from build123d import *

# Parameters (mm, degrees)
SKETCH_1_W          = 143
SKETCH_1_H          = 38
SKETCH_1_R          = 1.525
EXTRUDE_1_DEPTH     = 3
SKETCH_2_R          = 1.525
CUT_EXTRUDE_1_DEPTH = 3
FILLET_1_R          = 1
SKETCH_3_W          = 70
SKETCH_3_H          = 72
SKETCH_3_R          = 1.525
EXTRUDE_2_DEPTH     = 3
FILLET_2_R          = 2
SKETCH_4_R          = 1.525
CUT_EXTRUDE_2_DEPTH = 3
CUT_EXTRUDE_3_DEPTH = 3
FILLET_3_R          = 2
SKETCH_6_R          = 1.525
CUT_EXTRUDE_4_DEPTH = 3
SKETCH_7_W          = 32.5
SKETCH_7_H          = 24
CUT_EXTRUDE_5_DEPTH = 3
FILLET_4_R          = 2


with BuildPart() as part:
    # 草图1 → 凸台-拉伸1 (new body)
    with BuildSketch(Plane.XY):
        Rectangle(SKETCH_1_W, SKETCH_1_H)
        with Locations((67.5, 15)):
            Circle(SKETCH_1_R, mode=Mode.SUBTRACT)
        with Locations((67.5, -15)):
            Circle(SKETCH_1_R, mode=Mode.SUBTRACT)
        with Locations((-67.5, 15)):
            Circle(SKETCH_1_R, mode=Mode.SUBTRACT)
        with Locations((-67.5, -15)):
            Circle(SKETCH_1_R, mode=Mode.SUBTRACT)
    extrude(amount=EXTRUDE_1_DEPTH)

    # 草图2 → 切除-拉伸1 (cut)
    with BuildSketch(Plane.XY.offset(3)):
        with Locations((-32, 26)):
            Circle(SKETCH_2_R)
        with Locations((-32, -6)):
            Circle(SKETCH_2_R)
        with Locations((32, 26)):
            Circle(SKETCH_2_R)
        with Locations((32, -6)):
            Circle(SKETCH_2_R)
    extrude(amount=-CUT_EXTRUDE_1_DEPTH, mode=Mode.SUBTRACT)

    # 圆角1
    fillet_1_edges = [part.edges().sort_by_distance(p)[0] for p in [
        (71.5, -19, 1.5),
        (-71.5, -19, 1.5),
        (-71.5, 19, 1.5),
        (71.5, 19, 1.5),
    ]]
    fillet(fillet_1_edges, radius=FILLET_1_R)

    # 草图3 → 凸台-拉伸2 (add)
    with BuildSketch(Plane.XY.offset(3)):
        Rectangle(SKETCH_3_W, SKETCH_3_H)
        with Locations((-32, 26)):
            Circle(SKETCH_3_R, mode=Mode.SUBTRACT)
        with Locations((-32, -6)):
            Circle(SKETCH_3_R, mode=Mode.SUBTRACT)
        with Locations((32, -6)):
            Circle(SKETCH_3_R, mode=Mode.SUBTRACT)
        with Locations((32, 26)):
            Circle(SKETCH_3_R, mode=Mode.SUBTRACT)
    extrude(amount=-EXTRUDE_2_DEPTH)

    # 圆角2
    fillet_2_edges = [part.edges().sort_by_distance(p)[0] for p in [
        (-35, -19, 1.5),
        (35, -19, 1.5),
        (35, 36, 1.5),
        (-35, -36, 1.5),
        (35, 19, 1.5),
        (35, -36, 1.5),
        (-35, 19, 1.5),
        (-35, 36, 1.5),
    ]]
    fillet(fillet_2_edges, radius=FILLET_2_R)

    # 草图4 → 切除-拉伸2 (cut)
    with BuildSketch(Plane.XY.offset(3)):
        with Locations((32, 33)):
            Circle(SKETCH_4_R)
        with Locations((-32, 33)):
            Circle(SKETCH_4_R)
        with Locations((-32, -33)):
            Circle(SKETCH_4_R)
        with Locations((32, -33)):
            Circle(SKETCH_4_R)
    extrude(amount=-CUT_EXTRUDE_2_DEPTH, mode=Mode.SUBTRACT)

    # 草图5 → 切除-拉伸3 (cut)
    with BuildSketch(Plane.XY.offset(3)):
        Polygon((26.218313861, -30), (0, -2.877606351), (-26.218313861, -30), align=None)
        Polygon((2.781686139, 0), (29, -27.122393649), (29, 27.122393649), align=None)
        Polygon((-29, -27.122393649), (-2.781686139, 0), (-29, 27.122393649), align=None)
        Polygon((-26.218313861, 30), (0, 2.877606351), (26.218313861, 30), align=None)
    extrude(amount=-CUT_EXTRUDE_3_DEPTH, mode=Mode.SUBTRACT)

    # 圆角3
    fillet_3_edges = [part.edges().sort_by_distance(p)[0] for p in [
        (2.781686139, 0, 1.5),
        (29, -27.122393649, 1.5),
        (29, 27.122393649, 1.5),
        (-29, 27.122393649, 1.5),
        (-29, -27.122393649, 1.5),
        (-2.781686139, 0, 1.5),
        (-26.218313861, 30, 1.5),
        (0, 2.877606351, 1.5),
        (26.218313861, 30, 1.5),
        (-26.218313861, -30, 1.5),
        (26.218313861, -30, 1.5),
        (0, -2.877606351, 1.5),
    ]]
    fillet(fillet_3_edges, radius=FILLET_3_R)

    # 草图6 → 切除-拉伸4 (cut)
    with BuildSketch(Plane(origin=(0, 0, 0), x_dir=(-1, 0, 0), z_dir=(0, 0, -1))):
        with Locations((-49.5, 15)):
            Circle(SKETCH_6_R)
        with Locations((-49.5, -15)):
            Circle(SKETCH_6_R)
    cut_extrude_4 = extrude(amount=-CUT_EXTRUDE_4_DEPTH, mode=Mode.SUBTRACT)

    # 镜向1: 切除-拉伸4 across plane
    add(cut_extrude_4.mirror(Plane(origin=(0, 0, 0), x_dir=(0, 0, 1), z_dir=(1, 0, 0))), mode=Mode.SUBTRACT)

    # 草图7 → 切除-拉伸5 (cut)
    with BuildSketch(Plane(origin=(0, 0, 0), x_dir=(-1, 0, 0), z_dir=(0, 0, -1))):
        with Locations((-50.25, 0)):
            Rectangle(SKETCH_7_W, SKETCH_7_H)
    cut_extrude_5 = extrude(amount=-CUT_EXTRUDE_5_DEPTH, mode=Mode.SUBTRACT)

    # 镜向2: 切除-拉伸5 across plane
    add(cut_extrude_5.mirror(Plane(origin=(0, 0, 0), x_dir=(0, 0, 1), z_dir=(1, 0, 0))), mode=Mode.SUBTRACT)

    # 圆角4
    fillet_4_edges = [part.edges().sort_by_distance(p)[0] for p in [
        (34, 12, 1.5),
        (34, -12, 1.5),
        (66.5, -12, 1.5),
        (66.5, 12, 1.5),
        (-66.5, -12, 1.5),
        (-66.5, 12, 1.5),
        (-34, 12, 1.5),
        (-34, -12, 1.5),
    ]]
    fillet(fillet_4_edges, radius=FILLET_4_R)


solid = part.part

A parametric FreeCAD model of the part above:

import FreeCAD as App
import Part
import Sketcher


def edges_at(feature, points):
    """Names of the edges that pass closest to the given points."""
    edges = feature.Shape.Edges
    near = lambda p: min(range(len(edges)), key=lambda i: edges[i].distToShape(Part.Vertex(*p))[0])
    return sorted({f"Edge{near(p) + 1}" for p in points})

doc = App.newDocument("Part")
params = doc.addObject("Spreadsheet::Sheet", "Params")
for row, (alias, value) in enumerate([
    ("sketch1_diameter", "3.05 mm"),
    ("sketch1_width", "143 mm"),
    ("sketch1_height", "38 mm"),
    ("pad1_length", "3 mm"),
    ("sketch2_diameter", "3.05 mm"),
    ("pocket1_length", "3 mm"),
    ("fillet_radius", "1 mm"),
    ("sketch3_diameter", "3.05 mm"),
    ("sketch3_width", "70 mm"),
    ("sketch3_height", "72 mm"),
    ("pad2_length", "3 mm"),
    ("fillet2_radius", "2 mm"),
    ("sketch4_diameter", "3.05 mm"),
    ("pocket2_length", "3 mm"),
    ("pocket3_length", "3 mm"),
    ("fillet3_radius", "2 mm"),
    ("sketch6_diameter", "3.05 mm"),
    ("pocket4_length", "3 mm"),
    ("sketch7_height", "24 mm"),
    ("sketch7_width", "32.5 mm"),
    ("pocket5_length", "3 mm"),
    ("fillet4_radius", "2 mm"),
], start=1):
    params.set(f"A{row}", alias)
    params.set(f"B{row}", "=" + value)
    params.setAlias(f"B{row}", alias)

body = doc.addObject("PartDesign::Body", "Body")

# Sketch on XY plane
sketch1 = doc.addObject("Sketcher::SketchObject", "Sketch")
body.addObject(sketch1)
sketch1.AttachmentSupport = (doc.XY_Plane, [""])
sketch1.MapMode = "FlatFace"
sketch1.addGeometry(Part.LineSegment(App.Vector(-71.5, 19, 0), App.Vector(-71.5, -19, 0)), False)
sketch1.addGeometry(Part.LineSegment(App.Vector(-71.5, -19, 0), App.Vector(71.5, -19, 0)), False)
sketch1.addGeometry(Part.LineSegment(App.Vector(71.5, -19, 0), App.Vector(71.5, 19, 0)), False)
sketch1.addGeometry(Part.LineSegment(App.Vector(71.5, 19, 0), App.Vector(-71.5, 19, 0)), False)
sketch1.addGeometry(Part.Circle(App.Vector(-67.5, -15, 0), App.Vector(0, 0, 1), 1.5), False)
sketch1.addGeometry(Part.Circle(App.Vector(67.5, -15, 0), App.Vector(0, 0, 1), 1.5), False)
sketch1.addGeometry(Part.Circle(App.Vector(-67.5, 15, 0), App.Vector(0, 0, 1), 1.5), False)
sketch1.addGeometry(Part.Circle(App.Vector(67.5, 15, 0), App.Vector(0, 0, 1), 1.5), False)
sketch1.addConstraint(Sketcher.Constraint("Coincident", 0, 2, 1, 1))
sketch1.addConstraint(Sketcher.Constraint("Coincident", 1, 2, 2, 1))
sketch1.addConstraint(Sketcher.Constraint("Coincident", 2, 2, 3, 1))
sketch1.addConstraint(Sketcher.Constraint("Coincident", 3, 2, 0, 1))
sketch1.addConstraint(Sketcher.Constraint("Vertical", 0))
sketch1.addConstraint(Sketcher.Constraint("Horizontal", 1))
sketch1.addConstraint(Sketcher.Constraint("Vertical", 2))
sketch1.addConstraint(Sketcher.Constraint("Horizontal", 3))
sketch1.addConstraint(Sketcher.Constraint("Equal", 4, 5))
sketch1.addConstraint(Sketcher.Constraint("Equal", 5, 6))
sketch1.addConstraint(Sketcher.Constraint("Equal", 6, 7))
sketch1.addConstraint(Sketcher.Constraint("Symmetric", 5, 3, 6, 3, -1, 1))
sketch1.addConstraint(Sketcher.Constraint("Symmetric", 4, 3, 7, 3, -1, 1))
sketch1.addConstraint(Sketcher.Constraint("Symmetric", 0, 2, 2, 2, -1, 1))
sketch1.addConstraint(Sketcher.Constraint("Symmetric", 4, 3, 5, 3, -2))
sketch1.addConstraint(Sketcher.Constraint("Diameter", 4, 3.05))
sketch1.addConstraint(Sketcher.Constraint("DistanceX", 1, 1, 1, 2, 143.0))
sketch1.addConstraint(Sketcher.Constraint("DistanceY", 0, 2, 0, 1, 38.0))
sketch1.addConstraint(Sketcher.Constraint("DistanceY", 4, 3, -1, 1, 15.0))
sketch1.addConstraint(Sketcher.Constraint("DistanceX", 4, 3, 5, 3, 135.0))
sketch1.setExpression("Constraints[15]", "Params.sketch1_diameter")
sketch1.setExpression("Constraints[16]", "Params.sketch1_width")
sketch1.setExpression("Constraints[17]", "Params.sketch1_height")
pad1 = doc.addObject("PartDesign::Pad", "Pad")
body.addObject(pad1)
pad1.Profile = sketch1
pad1.setExpression("Length", "Params.pad1_length")

# Sketch on XY plane
sketch2 = doc.addObject("Sketcher::SketchObject", "Sketch001")
body.addObject(sketch2)
sketch2.AttachmentSupport = (doc.XY_Plane, [""])
sketch2.MapMode = "FlatFace"
sketch2.AttachmentOffset = App.Placement(App.Vector(0, 0, 3), App.Rotation())
sketch2.addGeometry(Part.Circle(App.Vector(-32, 26, 0), App.Vector(0, 0, 1), 1.5), False)
sketch2.addGeometry(Part.Circle(App.Vector(-32, -6, 0), App.Vector(0, 0, 1), 1.5), False)
sketch2.addGeometry(Part.Circle(App.Vector(32, 26, 0), App.Vector(0, 0, 1), 1.5), False)
sketch2.addGeometry(Part.Circle(App.Vector(32, -6, 0), App.Vector(0, 0, 1), 1.5), False)
sketch2.addConstraint(Sketcher.Constraint("Equal", 0, 1))
sketch2.addConstraint(Sketcher.Constraint("Equal", 1, 2))
sketch2.addConstraint(Sketcher.Constraint("Equal", 2, 3))
sketch2.addConstraint(Sketcher.Constraint("Symmetric", 0, 3, 2, 3, -2))
sketch2.addConstraint(Sketcher.Constraint("Symmetric", 1, 3, 3, 3, -2))
sketch2.addConstraint(Sketcher.Constraint("Vertical", 0, 3, 1, 3))
sketch2.addConstraint(Sketcher.Constraint("Diameter", 0, 3.05))
sketch2.addConstraint(Sketcher.Constraint("DistanceX", 0, 3, -1, 1, 32.0))
sketch2.addConstraint(Sketcher.Constraint("DistanceY", -1, 1, 0, 3, 26.0))
sketch2.addConstraint(Sketcher.Constraint("DistanceY", 1, 3, -1, 1, 6.0))
sketch2.setExpression("Constraints[6]", "Params.sketch2_diameter")
pocket1 = doc.addObject("PartDesign::Pocket", "Pocket")
body.addObject(pocket1)
pocket1.Profile = sketch2
pocket1.setExpression("Length", "Params.pocket1_length")
doc.recompute()

fillet = doc.addObject("PartDesign::Fillet", "Fillet")
body.addObject(fillet)
fillet.Base = (pocket1, edges_at(pocket1, [
    (71.5, -19, 1.5),
    (-71.5, -19, 1.5),
    (-71.5, 19, 1.5),
    (71.5, 19, 1.5),
]))
fillet.setExpression("Radius", "Params.fillet_radius")

# Sketch on XY plane
sketch3 = doc.addObject("Sketcher::SketchObject", "Sketch002")
body.addObject(sketch3)
sketch3.AttachmentSupport = (doc.XY_Plane, [""])
sketch3.MapMode = "FlatFace"
sketch3.AttachmentOffset = App.Placement(App.Vector(0, 0, 3), App.Rotation())
sketch3.addGeometry(Part.LineSegment(App.Vector(-35, 36, 0), App.Vector(-35, -36, 0)), False)
sketch3.addGeometry(Part.LineSegment(App.Vector(-35, -36, 0), App.Vector(35, -36, 0)), False)
sketch3.addGeometry(Part.LineSegment(App.Vector(35, -36, 0), App.Vector(35, 36, 0)), False)
sketch3.addGeometry(Part.LineSegment(App.Vector(35, 36, 0), App.Vector(-35, 36, 0)), False)
sketch3.addGeometry(Part.Circle(App.Vector(-32, -6, 0), App.Vector(0, 0, 1), 1.5), False)
sketch3.addGeometry(Part.Circle(App.Vector(32, -6, 0), App.Vector(0, 0, 1), 1.5), False)
sketch3.addGeometry(Part.Circle(App.Vector(-32, 26, 0), App.Vector(0, 0, 1), 1.5), False)
sketch3.addGeometry(Part.Circle(App.Vector(32, 26, 0), App.Vector(0, 0, 1), 1.5), False)
sketch3.addConstraint(Sketcher.Constraint("Coincident", 0, 2, 1, 1))
sketch3.addConstraint(Sketcher.Constraint("Coincident", 1, 2, 2, 1))
sketch3.addConstraint(Sketcher.Constraint("Coincident", 2, 2, 3, 1))
sketch3.addConstraint(Sketcher.Constraint("Coincident", 3, 2, 0, 1))
sketch3.addConstraint(Sketcher.Constraint("Vertical", 0))
sketch3.addConstraint(Sketcher.Constraint("Horizontal", 1))
sketch3.addConstraint(Sketcher.Constraint("Vertical", 2))
sketch3.addConstraint(Sketcher.Constraint("Horizontal", 3))
sketch3.addConstraint(Sketcher.Constraint("Equal", 4, 5))
sketch3.addConstraint(Sketcher.Constraint("Equal", 5, 6))
sketch3.addConstraint(Sketcher.Constraint("Equal", 6, 7))
sketch3.addConstraint(Sketcher.Constraint("Symmetric", 0, 2, 2, 2, -1, 1))
sketch3.addConstraint(Sketcher.Constraint("Symmetric", 4, 3, 5, 3, -2))
sketch3.addConstraint(Sketcher.Constraint("Symmetric", 6, 3, 7, 3, -2))
sketch3.addConstraint(Sketcher.Constraint("Vertical", 4, 3, 6, 3))
sketch3.addConstraint(Sketcher.Constraint("Diameter", 4, 3.05))
sketch3.addConstraint(Sketcher.Constraint("DistanceX", 1, 1, 1, 2, 70.0))
sketch3.addConstraint(Sketcher.Constraint("DistanceY", 0, 2, 0, 1, 72.0))
sketch3.addConstraint(Sketcher.Constraint("DistanceX", 4, 3, -1, 1, 32.0))
sketch3.addConstraint(Sketcher.Constraint("DistanceY", 4, 3, -1, 1, 6.0))
sketch3.addConstraint(Sketcher.Constraint("DistanceY", -1, 1, 6, 3, 26.0))
sketch3.setExpression("Constraints[15]", "Params.sketch3_diameter")
sketch3.setExpression("Constraints[16]", "Params.sketch3_width")
sketch3.setExpression("Constraints[17]", "Params.sketch3_height")
pad2 = doc.addObject("PartDesign::Pad", "Pad001")
body.addObject(pad2)
pad2.Profile = sketch3
pad2.setExpression("Length", "Params.pad2_length")
pad2.Reversed = True
doc.recompute()

fillet2 = doc.addObject("PartDesign::Fillet", "Fillet001")
body.addObject(fillet2)
fillet2.Base = (pad2, edges_at(pad2, [
    (-35, -19, 1.5),
    (35, -19, 1.5),
    (35, 36, 1.5),
    (-35, -36, 1.5),
    (35, 19, 1.5),
    (35, -36, 1.5),
    (-35, 19, 1.5),
    (-35, 36, 1.5),
]))
fillet2.setExpression("Radius", "Params.fillet2_radius")

# Sketch on XY plane
sketch4 = doc.addObject("Sketcher::SketchObject", "Sketch003")
body.addObject(sketch4)
sketch4.AttachmentSupport = (doc.XY_Plane, [""])
sketch4.MapMode = "FlatFace"
sketch4.AttachmentOffset = App.Placement(App.Vector(0, 0, 3), App.Rotation())
sketch4.addGeometry(Part.Circle(App.Vector(32, 33, 0), App.Vector(0, 0, 1), 1.5), False)
sketch4.addGeometry(Part.Circle(App.Vector(-32, 33, 0), App.Vector(0, 0, 1), 1.5), False)
sketch4.addGeometry(Part.Circle(App.Vector(-32, -33, 0), App.Vector(0, 0, 1), 1.5), False)
sketch4.addGeometry(Part.Circle(App.Vector(32, -33, 0), App.Vector(0, 0, 1), 1.5), False)
sketch4.addConstraint(Sketcher.Constraint("Equal", 0, 1))
sketch4.addConstraint(Sketcher.Constraint("Equal", 1, 2))
sketch4.addConstraint(Sketcher.Constraint("Equal", 2, 3))
sketch4.addConstraint(Sketcher.Constraint("Symmetric", 0, 3, 2, 3, -1, 1))
sketch4.addConstraint(Sketcher.Constraint("Symmetric", 1, 3, 3, 3, -1, 1))
sketch4.addConstraint(Sketcher.Constraint("Symmetric", 0, 3, 1, 3, -2))
sketch4.addConstraint(Sketcher.Constraint("Diameter", 0, 3.05))
sketch4.addConstraint(Sketcher.Constraint("DistanceX", -1, 1, 0, 3, 32.0))
sketch4.addConstraint(Sketcher.Constraint("DistanceY", -1, 1, 0, 3, 33.0))
sketch4.setExpression("Constraints[6]", "Params.sketch4_diameter")
pocket2 = doc.addObject("PartDesign::Pocket", "Pocket001")
body.addObject(pocket2)
pocket2.Profile = sketch4
pocket2.setExpression("Length", "Params.pocket2_length")

# Sketch on XY plane
sketch5 = doc.addObject("Sketcher::SketchObject", "Sketch004")
body.addObject(sketch5)
sketch5.AttachmentSupport = (doc.XY_Plane, [""])
sketch5.MapMode = "FlatFace"
sketch5.AttachmentOffset = App.Placement(App.Vector(0, 0, 3), App.Rotation())
sketch5.addGeometry(Part.LineSegment(App.Vector(26, -30, 0), App.Vector(0, -3, 0)), False)
sketch5.addGeometry(Part.LineSegment(App.Vector(0, -3, 0), App.Vector(-26, -30, 0)), False)
sketch5.addGeometry(Part.LineSegment(App.Vector(-26, -30, 0), App.Vector(26, -30, 0)), False)
sketch5.addGeometry(Part.LineSegment(App.Vector(3, 0, 0), App.Vector(29, -27, 0)), False)
sketch5.addGeometry(Part.LineSegment(App.Vector(29, -27, 0), App.Vector(29, 27, 0)), False)
sketch5.addGeometry(Part.LineSegment(App.Vector(29, 27, 0), App.Vector(3, 0, 0)), False)
sketch5.addGeometry(Part.LineSegment(App.Vector(-29, -27, 0), App.Vector(-3, 0, 0)), False)
sketch5.addGeometry(Part.LineSegment(App.Vector(-3, 0, 0), App.Vector(-29, 27, 0)), False)
sketch5.addGeometry(Part.LineSegment(App.Vector(-29, 27, 0), App.Vector(-29, -27, 0)), False)
sketch5.addGeometry(Part.LineSegment(App.Vector(-26, 30, 0), App.Vector(0, 3, 0)), False)
sketch5.addGeometry(Part.LineSegment(App.Vector(0, 3, 0), App.Vector(26, 30, 0)), False)
sketch5.addGeometry(Part.LineSegment(App.Vector(26, 30, 0), App.Vector(-26, 30, 0)), False)
sketch5.addConstraint(Sketcher.Constraint("Coincident", 0, 2, 1, 1))
sketch5.addConstraint(Sketcher.Constraint("Coincident", 1, 2, 2, 1))
sketch5.addConstraint(Sketcher.Constraint("Coincident", 2, 2, 0, 1))
sketch5.addConstraint(Sketcher.Constraint("Coincident", 3, 2, 4, 1))
sketch5.addConstraint(Sketcher.Constraint("Coincident", 4, 2, 5, 1))
sketch5.addConstraint(Sketcher.Constraint("Coincident", 5, 2, 3, 1))
sketch5.addConstraint(Sketcher.Constraint("Coincident", 6, 2, 7, 1))
sketch5.addConstraint(Sketcher.Constraint("Coincident", 7, 2, 8, 1))
sketch5.addConstraint(Sketcher.Constraint("Coincident", 8, 2, 6, 1))
sketch5.addConstraint(Sketcher.Constraint("Coincident", 9, 2, 10, 1))
sketch5.addConstraint(Sketcher.Constraint("Coincident", 10, 2, 11, 1))
sketch5.addConstraint(Sketcher.Constraint("Coincident", 11, 2, 9, 1))
sketch5.addConstraint(Sketcher.Constraint("Horizontal", 2))
sketch5.addConstraint(Sketcher.Constraint("Vertical", 4))
sketch5.addConstraint(Sketcher.Constraint("Vertical", 8))
sketch5.addConstraint(Sketcher.Constraint("Horizontal", 11))
sketch5.addConstraint(Sketcher.Constraint("Symmetric", 5, 2, 6, 2, -1, 1))
sketch5.addConstraint(Sketcher.Constraint("Symmetric", 3, 2, 7, 2, -1, 1))
sketch5.addConstraint(Sketcher.Constraint("Symmetric", 0, 2, 9, 2, -1, 1))
sketch5.addConstraint(Sketcher.Constraint("Symmetric", 1, 2, 10, 2, -1, 1))
sketch5.addConstraint(Sketcher.Constraint("PointOnObject", 0, 2, -2))
sketch5.addConstraint(Sketcher.Constraint("PointOnObject", 5, 2, -1))
sketch5.addConstraint(Sketcher.Constraint("Parallel", 0, 3))
sketch5.addConstraint(Sketcher.Constraint("Parallel", 1, 5))
sketch5.addConstraint(Sketcher.Constraint("Parallel", 5, 6))
sketch5.addConstraint(Sketcher.Constraint("Parallel", 7, 9))
sketch5.addConstraint(Sketcher.Constraint("Horizontal", 4, 2, 7, 2))
sketch5.addConstraint(Sketcher.Constraint("Equal", 1, 3))
sketch5.addConstraint(Sketcher.Constraint("DistanceY", 1, 2, -1, 1, 30.0))
sketch5.addConstraint(Sketcher.Constraint("DistanceX", -1, 1, 3, 2, 29.0))
sketch5.addConstraint(Sketcher.Constraint("DistanceX", 2, 1, 2, 2, 52.436628))
sketch5.addConstraint(Sketcher.Constraint("DistanceY", 4, 1, 4, 2, 54.244787))
pocket3 = doc.addObject("PartDesign::Pocket", "Pocket002")
body.addObject(pocket3)
pocket3.Profile = sketch5
pocket3.setExpression("Length", "Params.pocket3_length")
doc.recompute()

fillet3 = doc.addObject("PartDesign::Fillet", "Fillet002")
body.addObject(fillet3)
fillet3.Base = (pocket3, edges_at(pocket3, [
    (2.782, 0, 1.5),
    (29, -27.122, 1.5),
    (29, 27.122, 1.5),
    (-29, 27.122, 1.5),
    (-29, -27.122, 1.5),
    (-2.782, 0, 1.5),
    (-26.218, 30, 1.5),
    (0, 2.878, 1.5),
    (26.218, 30, 1.5),
    (-26.218, -30, 1.5),
    (26.218, -30, 1.5),
    (0, -2.878, 1.5),
]))
fillet3.setExpression("Radius", "Params.fillet3_radius")

# Sketch on XY plane
sketch6 = doc.addObject("Sketcher::SketchObject", "Sketch005")
body.addObject(sketch6)
sketch6.AttachmentSupport = (doc.XY_Plane, [""])
sketch6.MapMode = "FlatFace"
sketch6.addGeometry(Part.Circle(App.Vector(49.5, 15, 0), App.Vector(0, 0, 1), 1.5), False)
sketch6.addGeometry(Part.Circle(App.Vector(49.5, -15, 0), App.Vector(0, 0, 1), 1.5), False)
sketch6.addConstraint(Sketcher.Constraint("Equal", 0, 1))
sketch6.addConstraint(Sketcher.Constraint("Symmetric", 0, 3, 1, 3, -1))
sketch6.addConstraint(Sketcher.Constraint("Diameter", 0, 3.05))
sketch6.addConstraint(Sketcher.Constraint("DistanceY", -1, 1, 0, 3, 15.0))
sketch6.addConstraint(Sketcher.Constraint("DistanceX", -1, 1, 0, 3, 49.5))
sketch6.setExpression("Constraints[2]", "Params.sketch6_diameter")
pocket4 = doc.addObject("PartDesign::Pocket", "Pocket003")
body.addObject(pocket4)
pocket4.Profile = sketch6
pocket4.setExpression("Length", "Params.pocket4_length")
pocket4.Reversed = True
doc.recompute()

mirrored = doc.addObject("PartDesign::Mirrored", "Mirrored")
body.addObject(mirrored)
mirrored.Originals = [pocket4]
mirrored.MirrorPlane = (doc.YZ_Plane, [""])
body.Tip = mirrored

# Sketch on XY plane
sketch7 = doc.addObject("Sketcher::SketchObject", "Sketch006")
body.addObject(sketch7)
sketch7.AttachmentSupport = (doc.XY_Plane, [""])
sketch7.MapMode = "FlatFace"
sketch7.addGeometry(Part.LineSegment(App.Vector(66, 12, 0), App.Vector(66, -12, 0)), False)
sketch7.addGeometry(Part.LineSegment(App.Vector(66, -12, 0), App.Vector(34, -12, 0)), False)
sketch7.addGeometry(Part.LineSegment(App.Vector(34, -12, 0), App.Vector(34, 12, 0)), False)
sketch7.addGeometry(Part.LineSegment(App.Vector(34, 12, 0), App.Vector(66, 12, 0)), False)
sketch7.addConstraint(Sketcher.Constraint("Coincident", 0, 2, 1, 1))
sketch7.addConstraint(Sketcher.Constraint("Coincident", 1, 2, 2, 1))
sketch7.addConstraint(Sketcher.Constraint("Coincident", 2, 2, 3, 1))
sketch7.addConstraint(Sketcher.Constraint("Coincident", 3, 2, 0, 1))
sketch7.addConstraint(Sketcher.Constraint("Vertical", 0))
sketch7.addConstraint(Sketcher.Constraint("Horizontal", 1))
sketch7.addConstraint(Sketcher.Constraint("Vertical", 2))
sketch7.addConstraint(Sketcher.Constraint("Horizontal", 3))
sketch7.addConstraint(Sketcher.Constraint("DistanceY", 0, 2, 0, 1, 24.0))
sketch7.addConstraint(Sketcher.Constraint("DistanceX", 1, 2, 1, 1, 32.5))
sketch7.addConstraint(Sketcher.Constraint("DistanceY", 0, 2, -1, 1, 12.0))
sketch7.addConstraint(Sketcher.Constraint("DistanceX", -1, 1, 1, 2, 34.0))
sketch7.setExpression("Constraints[8]", "Params.sketch7_height")
sketch7.setExpression("Constraints[9]", "Params.sketch7_width")
pocket5 = doc.addObject("PartDesign::Pocket", "Pocket004")
body.addObject(pocket5)
pocket5.Profile = sketch7
pocket5.setExpression("Length", "Params.pocket5_length")
pocket5.Reversed = True
doc.recompute()

mirrored2 = doc.addObject("PartDesign::Mirrored", "Mirrored001")
body.addObject(mirrored2)
mirrored2.Originals = [pocket5]
mirrored2.MirrorPlane = (doc.YZ_Plane, [""])
body.Tip = mirrored2
doc.recompute()

fillet4 = doc.addObject("PartDesign::Fillet", "Fillet003")
body.addObject(fillet4)
fillet4.Base = (mirrored2, edges_at(mirrored2, [
    (34, 12, 1.5),
    (34, -12, 1.5),
    (66.5, -12, 1.5),
    (66.5, 12, 1.5),
    (-66.5, -12, 1.5),
    (-66.5, 12, 1.5),
    (-34, 12, 1.5),
    (-34, -12, 1.5),
]))
fillet4.setExpression("Radius", "Params.fillet4_radius")

doc.recompute()
